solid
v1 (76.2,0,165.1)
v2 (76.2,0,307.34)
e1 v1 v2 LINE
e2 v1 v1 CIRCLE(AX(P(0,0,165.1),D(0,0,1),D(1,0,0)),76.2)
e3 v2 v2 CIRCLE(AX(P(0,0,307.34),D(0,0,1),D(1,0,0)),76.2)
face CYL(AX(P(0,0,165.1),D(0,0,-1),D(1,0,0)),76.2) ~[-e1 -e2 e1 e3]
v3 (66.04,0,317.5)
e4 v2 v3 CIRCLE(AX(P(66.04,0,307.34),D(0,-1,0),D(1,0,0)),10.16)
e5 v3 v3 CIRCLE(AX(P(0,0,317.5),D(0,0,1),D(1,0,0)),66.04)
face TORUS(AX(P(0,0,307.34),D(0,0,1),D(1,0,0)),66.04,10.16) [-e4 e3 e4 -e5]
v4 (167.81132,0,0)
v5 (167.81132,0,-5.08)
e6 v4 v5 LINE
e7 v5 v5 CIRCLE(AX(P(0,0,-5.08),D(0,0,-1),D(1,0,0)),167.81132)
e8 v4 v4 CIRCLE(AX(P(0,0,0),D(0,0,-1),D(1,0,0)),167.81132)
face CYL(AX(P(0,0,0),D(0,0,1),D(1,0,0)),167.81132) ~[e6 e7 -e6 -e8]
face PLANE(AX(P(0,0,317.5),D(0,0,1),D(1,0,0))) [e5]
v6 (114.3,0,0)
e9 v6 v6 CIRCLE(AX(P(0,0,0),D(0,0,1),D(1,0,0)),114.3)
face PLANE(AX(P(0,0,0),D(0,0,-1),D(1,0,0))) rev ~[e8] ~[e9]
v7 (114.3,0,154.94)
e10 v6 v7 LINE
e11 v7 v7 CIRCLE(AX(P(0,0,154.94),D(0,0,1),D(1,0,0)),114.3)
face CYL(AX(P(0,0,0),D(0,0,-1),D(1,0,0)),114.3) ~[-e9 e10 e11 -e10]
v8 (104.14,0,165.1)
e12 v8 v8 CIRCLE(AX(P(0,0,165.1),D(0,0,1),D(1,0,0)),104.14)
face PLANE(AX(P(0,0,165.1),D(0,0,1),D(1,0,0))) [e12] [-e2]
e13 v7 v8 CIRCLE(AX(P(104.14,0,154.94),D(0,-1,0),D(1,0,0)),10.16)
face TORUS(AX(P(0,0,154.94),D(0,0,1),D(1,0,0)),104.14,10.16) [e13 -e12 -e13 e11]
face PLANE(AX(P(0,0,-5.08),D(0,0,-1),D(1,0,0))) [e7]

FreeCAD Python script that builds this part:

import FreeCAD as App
import Part
import Sketcher

V = App.Vector
Q = App.Units.Quantity


def edges_at(feature, points):
    """Names of the edges that pass closest to the given points."""
    edges = feature.Shape.Edges
    near = lambda p: min(range(len(edges)), key=lambda i: edges[i].distToShape(Part.Vertex(*p))[0])
    return sorted({f"Edge{near(p) + 1}" for p in points})

doc = App.newDocument("Part")
body = doc.addObject("PartDesign::Body", "Body")

# Sketch on XY plane
sketch1 = body.newObject("Sketcher::SketchObject", "Sketch")
sketch1.AttachmentSupport = (doc.getObject("XY_Plane"), [""])
sketch1.MapMode = "FlatFace"
sketch1.addGeometry(Part.Circle(V(0, 0, 0), V(0, 0, 1), 114), False)
sketch1.addConstraint(Sketcher.Constraint("Coincident", 0, 3, -1, 1))
sketch1.addConstraint(Sketcher.Constraint("Diameter", 0, Q("9 in")))
pad1 = body.newObject("PartDesign::Pad", "Pad")
pad1.Profile = sketch1
pad1.Length = Q("6.5 in")

# Sketch on XY plane
sketch2 = body.newObject("Sketcher::SketchObject", "Sketch001")
sketch2.AttachmentSupport = (doc.getObject("XY_Plane"), [""])
sketch2.MapMode = "FlatFace"
sketch2.AttachmentOffset = App.Placement(V(0, 0, 6.5 * 25.4), App.Rotation())
sketch2.addGeometry(Part.Circle(V(0, 0, 0), V(0, 0, 1), 76), False)
sketch2.addConstraint(Sketcher.Constraint("Coincident", 0, 3, -1, 1))
sketch2.addConstraint(Sketcher.Constraint("Diameter", 0, Q("6 in")))
pad2 = body.newObject("PartDesign::Pad", "Pad001")
pad2.Profile = sketch2
pad2.Length = Q("6 in")
doc.recompute()

fillet = body.newObject("PartDesign::Fillet", "Fillet")
fillet.Base = (pad2, edges_at(pad2, [(-114.3, 0, 165.1), (-76.2, 0, 317.5)]))
fillet.Radius = Q("0.4 in")

# Sketch on XY plane
sketch3 = body.newObject("Sketcher::SketchObject", "Sketch002")
sketch3.AttachmentSupport = (doc.getObject("XY_Plane"), [""])
sketch3.MapMode = "FlatFace"
sketch3.addGeometry(Part.Circle(V(0, 0, 0), V(0, 0, 1), 168), False)
sketch3.addConstraint(Sketcher.Constraint("Coincident", 0, 3, -1, 1))
sketch3.addConstraint(Sketcher.Constraint("Diameter", 0, 335.62264))
pad3 = body.newObject("PartDesign::Pad", "Pad002")
pad3.Profile = sketch3
pad3.Length = Q("0.2 in")
pad3.Reversed = True

doc.recompute()
